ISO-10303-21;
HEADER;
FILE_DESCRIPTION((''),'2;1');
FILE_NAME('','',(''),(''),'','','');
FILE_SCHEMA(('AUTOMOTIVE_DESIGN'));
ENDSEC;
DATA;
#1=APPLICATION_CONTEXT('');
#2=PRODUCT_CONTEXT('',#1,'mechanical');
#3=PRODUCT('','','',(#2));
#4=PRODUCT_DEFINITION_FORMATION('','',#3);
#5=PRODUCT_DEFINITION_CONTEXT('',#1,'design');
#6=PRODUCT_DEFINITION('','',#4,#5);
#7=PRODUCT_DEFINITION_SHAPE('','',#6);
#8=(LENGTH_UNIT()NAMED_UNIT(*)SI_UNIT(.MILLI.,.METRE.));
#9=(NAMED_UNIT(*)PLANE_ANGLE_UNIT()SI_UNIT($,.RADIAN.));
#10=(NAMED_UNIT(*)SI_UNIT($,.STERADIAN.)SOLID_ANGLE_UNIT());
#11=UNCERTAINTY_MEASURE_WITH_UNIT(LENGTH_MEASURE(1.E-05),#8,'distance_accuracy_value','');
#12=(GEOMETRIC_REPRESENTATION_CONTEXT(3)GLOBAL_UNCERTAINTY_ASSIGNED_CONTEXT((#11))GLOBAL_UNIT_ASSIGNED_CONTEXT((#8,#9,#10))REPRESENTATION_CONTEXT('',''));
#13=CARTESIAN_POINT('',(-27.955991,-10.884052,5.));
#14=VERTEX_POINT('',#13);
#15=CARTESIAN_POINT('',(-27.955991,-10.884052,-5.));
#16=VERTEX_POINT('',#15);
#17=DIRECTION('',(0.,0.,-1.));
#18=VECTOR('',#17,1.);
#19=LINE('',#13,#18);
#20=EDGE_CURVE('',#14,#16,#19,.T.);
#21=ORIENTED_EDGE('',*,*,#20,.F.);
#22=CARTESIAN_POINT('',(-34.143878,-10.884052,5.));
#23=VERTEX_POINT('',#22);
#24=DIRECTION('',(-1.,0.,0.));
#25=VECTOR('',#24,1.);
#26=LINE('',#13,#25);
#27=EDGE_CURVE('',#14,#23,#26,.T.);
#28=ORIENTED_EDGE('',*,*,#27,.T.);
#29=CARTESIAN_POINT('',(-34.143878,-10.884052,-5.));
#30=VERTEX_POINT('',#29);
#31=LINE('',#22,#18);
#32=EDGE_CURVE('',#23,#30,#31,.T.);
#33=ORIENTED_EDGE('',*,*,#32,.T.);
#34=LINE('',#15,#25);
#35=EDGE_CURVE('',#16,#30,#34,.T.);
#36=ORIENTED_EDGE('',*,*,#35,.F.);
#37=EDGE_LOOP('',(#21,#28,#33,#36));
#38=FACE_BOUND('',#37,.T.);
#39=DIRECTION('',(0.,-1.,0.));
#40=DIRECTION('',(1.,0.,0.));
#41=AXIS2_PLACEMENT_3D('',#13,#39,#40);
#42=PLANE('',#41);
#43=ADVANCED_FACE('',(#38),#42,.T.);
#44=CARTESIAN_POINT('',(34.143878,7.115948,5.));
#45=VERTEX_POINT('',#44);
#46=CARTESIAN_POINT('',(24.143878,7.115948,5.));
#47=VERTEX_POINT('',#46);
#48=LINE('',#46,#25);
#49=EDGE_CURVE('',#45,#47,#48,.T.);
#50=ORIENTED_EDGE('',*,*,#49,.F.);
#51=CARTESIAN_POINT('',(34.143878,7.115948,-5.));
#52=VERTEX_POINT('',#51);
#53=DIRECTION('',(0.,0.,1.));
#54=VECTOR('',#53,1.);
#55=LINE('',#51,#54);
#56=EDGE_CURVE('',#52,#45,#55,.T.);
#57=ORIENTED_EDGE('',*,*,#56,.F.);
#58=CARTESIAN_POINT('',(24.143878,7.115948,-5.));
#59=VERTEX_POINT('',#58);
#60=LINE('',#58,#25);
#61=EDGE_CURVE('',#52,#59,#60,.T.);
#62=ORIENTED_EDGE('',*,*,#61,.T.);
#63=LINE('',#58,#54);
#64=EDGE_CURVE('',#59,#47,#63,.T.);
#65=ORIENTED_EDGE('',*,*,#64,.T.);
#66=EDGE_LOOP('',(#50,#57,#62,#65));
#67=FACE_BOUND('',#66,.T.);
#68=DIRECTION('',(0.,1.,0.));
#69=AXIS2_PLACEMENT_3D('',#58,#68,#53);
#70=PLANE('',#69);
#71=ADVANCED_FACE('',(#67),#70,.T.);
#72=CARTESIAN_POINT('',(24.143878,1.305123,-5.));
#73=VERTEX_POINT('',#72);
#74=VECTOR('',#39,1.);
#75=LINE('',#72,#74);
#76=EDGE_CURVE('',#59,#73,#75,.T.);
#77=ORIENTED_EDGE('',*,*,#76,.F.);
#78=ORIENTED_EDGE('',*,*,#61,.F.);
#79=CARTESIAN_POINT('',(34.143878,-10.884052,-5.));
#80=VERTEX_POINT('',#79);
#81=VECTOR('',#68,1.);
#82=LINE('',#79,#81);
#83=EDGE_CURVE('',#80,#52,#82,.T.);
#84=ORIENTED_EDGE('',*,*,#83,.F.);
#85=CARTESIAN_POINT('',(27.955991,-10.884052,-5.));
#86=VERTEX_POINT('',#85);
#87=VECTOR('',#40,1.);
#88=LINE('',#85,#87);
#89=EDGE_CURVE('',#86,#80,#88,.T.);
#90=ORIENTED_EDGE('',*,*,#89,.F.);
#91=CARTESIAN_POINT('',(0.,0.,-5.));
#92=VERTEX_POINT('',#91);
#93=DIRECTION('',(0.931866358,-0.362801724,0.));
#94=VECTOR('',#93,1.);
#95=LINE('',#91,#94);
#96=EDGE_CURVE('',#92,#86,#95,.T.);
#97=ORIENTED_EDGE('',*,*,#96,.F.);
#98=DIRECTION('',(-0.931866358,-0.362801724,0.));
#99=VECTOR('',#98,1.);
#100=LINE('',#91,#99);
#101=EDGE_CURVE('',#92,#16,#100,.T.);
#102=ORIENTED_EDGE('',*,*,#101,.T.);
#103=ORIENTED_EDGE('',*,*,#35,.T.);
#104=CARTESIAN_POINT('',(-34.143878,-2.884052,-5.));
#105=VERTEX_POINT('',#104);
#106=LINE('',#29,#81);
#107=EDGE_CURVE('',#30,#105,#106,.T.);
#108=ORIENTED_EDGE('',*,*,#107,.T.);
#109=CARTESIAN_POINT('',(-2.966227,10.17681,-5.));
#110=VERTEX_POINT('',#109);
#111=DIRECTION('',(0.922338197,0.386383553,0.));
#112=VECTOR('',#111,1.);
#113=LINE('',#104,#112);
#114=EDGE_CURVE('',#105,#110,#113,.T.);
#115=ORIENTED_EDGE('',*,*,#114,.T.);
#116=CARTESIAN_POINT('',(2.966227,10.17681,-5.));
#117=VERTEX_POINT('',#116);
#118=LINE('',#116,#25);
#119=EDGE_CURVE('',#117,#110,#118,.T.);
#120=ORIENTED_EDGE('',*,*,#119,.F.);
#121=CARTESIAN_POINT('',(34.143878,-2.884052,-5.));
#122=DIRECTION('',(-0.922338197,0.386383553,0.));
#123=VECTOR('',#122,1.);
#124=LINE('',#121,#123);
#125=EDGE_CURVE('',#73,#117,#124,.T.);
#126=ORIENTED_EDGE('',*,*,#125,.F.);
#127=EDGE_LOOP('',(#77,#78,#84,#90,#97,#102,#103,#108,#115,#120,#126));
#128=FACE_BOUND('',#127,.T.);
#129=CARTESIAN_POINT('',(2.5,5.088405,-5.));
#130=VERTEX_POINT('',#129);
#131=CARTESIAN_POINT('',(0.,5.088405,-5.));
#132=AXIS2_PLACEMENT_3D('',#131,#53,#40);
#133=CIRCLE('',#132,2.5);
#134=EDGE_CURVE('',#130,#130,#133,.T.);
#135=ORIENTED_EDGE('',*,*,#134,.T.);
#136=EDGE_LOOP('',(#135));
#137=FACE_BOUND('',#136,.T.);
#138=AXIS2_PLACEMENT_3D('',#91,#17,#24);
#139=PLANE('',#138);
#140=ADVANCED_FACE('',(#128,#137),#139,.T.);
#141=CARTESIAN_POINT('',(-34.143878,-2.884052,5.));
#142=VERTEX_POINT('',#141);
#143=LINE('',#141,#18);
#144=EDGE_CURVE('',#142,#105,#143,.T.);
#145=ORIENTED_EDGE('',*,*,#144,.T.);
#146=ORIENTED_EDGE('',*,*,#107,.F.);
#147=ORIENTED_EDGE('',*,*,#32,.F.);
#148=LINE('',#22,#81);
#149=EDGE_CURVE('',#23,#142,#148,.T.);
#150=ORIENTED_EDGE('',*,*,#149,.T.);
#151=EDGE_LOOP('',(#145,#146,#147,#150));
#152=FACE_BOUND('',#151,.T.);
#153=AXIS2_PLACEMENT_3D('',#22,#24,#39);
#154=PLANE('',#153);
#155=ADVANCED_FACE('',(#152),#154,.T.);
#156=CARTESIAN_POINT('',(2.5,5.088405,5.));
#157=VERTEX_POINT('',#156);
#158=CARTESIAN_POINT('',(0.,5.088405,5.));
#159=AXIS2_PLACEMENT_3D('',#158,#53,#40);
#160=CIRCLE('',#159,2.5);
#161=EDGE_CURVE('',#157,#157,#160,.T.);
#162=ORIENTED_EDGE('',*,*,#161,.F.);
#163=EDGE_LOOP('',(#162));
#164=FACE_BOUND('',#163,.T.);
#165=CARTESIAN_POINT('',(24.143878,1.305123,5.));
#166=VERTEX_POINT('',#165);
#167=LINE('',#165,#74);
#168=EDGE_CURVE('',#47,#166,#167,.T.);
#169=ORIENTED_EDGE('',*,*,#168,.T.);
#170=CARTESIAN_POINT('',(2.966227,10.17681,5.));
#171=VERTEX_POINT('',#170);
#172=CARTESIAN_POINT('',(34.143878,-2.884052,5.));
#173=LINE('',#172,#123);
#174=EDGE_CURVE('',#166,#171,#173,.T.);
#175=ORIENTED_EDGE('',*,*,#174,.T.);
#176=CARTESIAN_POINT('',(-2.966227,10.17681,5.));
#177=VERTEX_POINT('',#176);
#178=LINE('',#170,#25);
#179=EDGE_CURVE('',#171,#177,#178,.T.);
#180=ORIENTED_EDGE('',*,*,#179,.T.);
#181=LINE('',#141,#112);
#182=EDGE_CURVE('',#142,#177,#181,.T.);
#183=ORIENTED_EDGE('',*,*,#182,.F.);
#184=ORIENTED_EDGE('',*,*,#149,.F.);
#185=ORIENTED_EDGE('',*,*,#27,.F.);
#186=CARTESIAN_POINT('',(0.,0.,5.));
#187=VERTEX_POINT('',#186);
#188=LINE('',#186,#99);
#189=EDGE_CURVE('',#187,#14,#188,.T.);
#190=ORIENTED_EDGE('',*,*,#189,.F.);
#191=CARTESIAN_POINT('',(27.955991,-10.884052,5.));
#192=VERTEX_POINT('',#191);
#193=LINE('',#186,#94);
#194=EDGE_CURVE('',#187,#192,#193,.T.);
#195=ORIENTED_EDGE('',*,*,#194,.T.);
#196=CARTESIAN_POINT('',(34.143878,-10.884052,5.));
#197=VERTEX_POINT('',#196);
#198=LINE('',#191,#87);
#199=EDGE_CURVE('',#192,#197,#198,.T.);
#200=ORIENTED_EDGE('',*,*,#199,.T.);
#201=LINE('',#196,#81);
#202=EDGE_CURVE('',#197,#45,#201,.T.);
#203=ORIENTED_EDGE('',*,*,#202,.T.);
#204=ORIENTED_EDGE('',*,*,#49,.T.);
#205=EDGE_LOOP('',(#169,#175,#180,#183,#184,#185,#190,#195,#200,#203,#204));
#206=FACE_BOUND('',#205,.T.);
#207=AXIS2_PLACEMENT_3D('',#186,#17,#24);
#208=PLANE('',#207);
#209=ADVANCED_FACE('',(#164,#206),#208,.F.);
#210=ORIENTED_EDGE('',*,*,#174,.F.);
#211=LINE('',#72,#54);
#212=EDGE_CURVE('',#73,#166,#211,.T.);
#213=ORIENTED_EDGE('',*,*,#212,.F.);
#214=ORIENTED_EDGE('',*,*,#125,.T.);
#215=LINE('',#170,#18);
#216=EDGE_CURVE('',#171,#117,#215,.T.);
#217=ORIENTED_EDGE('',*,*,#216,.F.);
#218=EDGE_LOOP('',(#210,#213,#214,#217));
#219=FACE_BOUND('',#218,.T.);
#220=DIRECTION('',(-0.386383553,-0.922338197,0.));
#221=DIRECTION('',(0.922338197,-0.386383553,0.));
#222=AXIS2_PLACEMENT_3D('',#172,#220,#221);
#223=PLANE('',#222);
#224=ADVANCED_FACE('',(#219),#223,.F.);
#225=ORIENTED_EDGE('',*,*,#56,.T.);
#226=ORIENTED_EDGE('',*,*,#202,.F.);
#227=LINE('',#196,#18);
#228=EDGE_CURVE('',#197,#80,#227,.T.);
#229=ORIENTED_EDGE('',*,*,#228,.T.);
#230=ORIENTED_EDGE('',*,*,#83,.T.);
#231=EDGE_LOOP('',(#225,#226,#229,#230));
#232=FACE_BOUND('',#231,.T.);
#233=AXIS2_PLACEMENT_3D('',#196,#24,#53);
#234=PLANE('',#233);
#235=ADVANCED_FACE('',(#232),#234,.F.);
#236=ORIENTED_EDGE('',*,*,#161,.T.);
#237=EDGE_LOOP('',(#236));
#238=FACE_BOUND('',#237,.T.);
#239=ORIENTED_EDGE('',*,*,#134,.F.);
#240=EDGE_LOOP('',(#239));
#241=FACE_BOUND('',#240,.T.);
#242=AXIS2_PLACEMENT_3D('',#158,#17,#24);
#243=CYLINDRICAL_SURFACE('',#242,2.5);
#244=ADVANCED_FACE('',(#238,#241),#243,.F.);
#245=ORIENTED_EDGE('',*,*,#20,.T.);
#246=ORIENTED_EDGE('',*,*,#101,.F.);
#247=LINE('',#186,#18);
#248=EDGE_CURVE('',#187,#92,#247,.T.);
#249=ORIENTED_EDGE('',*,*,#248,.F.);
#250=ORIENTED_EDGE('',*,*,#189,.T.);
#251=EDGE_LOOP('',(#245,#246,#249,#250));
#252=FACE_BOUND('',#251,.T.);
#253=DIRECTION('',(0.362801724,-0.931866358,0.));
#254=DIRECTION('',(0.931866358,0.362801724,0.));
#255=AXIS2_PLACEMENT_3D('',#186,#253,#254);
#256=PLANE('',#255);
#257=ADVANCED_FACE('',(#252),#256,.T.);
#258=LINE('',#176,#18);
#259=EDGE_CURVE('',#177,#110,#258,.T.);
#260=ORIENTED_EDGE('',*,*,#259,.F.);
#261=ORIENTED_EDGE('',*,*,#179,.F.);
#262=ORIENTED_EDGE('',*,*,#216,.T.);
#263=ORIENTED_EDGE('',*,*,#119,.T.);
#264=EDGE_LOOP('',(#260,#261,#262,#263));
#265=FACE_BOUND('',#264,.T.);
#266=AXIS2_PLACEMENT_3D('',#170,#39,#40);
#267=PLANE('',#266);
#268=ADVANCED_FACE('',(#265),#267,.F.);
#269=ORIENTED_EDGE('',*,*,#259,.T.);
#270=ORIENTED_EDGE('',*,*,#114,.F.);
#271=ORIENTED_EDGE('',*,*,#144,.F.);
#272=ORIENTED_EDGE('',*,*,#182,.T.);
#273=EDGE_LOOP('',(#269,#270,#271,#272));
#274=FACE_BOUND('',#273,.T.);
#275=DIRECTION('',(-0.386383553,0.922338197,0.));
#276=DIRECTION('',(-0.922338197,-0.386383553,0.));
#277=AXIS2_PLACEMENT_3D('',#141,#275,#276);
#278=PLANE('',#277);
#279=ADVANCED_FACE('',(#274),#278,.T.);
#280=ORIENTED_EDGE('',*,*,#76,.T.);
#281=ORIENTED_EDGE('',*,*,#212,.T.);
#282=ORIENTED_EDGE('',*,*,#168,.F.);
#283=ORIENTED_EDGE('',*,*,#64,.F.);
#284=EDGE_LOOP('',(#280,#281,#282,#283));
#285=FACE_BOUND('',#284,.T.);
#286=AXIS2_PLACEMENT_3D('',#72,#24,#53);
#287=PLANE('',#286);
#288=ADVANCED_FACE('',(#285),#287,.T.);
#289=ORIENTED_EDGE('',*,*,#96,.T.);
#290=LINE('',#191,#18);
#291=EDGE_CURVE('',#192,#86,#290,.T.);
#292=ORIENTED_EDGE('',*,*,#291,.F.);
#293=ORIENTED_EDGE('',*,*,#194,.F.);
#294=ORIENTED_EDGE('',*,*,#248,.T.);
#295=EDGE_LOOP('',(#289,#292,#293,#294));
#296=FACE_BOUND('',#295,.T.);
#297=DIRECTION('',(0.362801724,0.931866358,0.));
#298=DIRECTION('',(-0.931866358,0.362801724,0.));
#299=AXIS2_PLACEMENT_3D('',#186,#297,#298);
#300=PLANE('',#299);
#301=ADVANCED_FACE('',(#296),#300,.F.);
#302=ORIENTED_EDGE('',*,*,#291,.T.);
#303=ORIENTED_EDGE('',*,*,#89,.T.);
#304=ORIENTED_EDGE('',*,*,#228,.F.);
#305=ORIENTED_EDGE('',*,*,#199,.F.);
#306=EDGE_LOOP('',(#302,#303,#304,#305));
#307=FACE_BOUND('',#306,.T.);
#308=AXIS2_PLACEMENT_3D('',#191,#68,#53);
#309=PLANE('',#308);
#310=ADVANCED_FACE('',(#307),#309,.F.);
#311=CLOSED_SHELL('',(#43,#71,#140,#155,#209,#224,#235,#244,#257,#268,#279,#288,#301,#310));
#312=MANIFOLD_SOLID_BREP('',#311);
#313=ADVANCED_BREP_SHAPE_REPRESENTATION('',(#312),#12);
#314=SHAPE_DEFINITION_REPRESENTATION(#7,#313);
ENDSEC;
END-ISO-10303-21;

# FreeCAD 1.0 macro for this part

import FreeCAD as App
import Part
import Sketcher
from FreeCAD import Vector

doc = App.newDocument("Part")
body = doc.addObject("PartDesign::Body", "Body")

# Sketch on XY plane
sketch1 = doc.addObject("Sketcher::SketchObject", "Sketch")
body.addObject(sketch1)
sketch1.AttachmentSupport = (doc.XY_Plane, [""])
sketch1.MapMode = "FlatFace"
sketch1.addGeometry(Part.LineSegment(Vector(0, 0, 0), Vector(28, -10.9, 0)), False)
sketch1.addGeometry(Part.LineSegment(Vector(28, -10.9, 0), Vector(34.1, -10.9, 0)), False)
sketch1.addGeometry(Part.LineSegment(Vector(34.1, -10.9, 0), Vector(34.1, -2.9, 0)), False)
sketch1.addGeometry(Part.LineSegment(Vector(34.1, -2.9, 0), Vector(3, 10.2, 0)), False)
sketch1.addGeometry(Part.LineSegment(Vector(3, 10.2, 0), Vector(-3, 10.2, 0)), False)
sketch1.addGeometry(Part.LineSegment(Vector(-3, 10.2, 0), Vector(-34.1, -2.9, 0)), False)
sketch1.addGeometry(Part.LineSegment(Vector(-34.1, -2.9, 0), Vector(-34.1, -10.9, 0)), False)
sketch1.addGeometry(Part.LineSegment(Vector(-34.1, -10.9, 0), Vector(-28, -10.9, 0)), False)
sketch1.addGeometry(Part.LineSegment(Vector(-28, -10.9, 0), Vector(0, 0, 0)), False)
sketch1.addGeometry(Part.Circle(Vector(0, 5.1, 0), Vector(0, 0, 1), 2.5), False)
sketch1.addConstraint(Sketcher.Constraint("Coincident", 0, 2, 1, 1))
sketch1.addConstraint(Sketcher.Constraint("Coincident", 1, 2, 2, 1))
sketch1.addConstraint(Sketcher.Constraint("Coincident", 2, 2, 3, 1))
sketch1.addConstraint(Sketcher.Constraint("Coincident", 3, 2, 4, 1))
sketch1.addConstraint(Sketcher.Constraint("Coincident", 4, 2, 5, 1))
sketch1.addConstraint(Sketcher.Constraint("Coincident", 5, 2, 6, 1))
sketch1.addConstraint(Sketcher.Constraint("Coincident", 6, 2, 7, 1))
sketch1.addConstraint(Sketcher.Constraint("Coincident", 7, 2, 8, 1))
sketch1.addConstraint(Sketcher.Constraint("Coincident", 8, 2, 0, 1))
sketch1.addConstraint(Sketcher.Constraint("Horizontal", 1))
sketch1.addConstraint(Sketcher.Constraint("Vertical", 2))
sketch1.addConstraint(Sketcher.Constraint("Horizontal", 4))
sketch1.addConstraint(Sketcher.Constraint("Vertical", 6))
sketch1.addConstraint(Sketcher.Constraint("Horizontal", 7))
sketch1.addConstraint(Sketcher.Constraint("Coincident", 8, 2, -1, 1))
sketch1.addConstraint(Sketcher.Constraint("Symmetric", 2, 2, 5, 2, -2))
sketch1.addConstraint(Sketcher.Constraint("Symmetric", 0, 2, 7, 2, -2))
sketch1.addConstraint(Sketcher.Constraint("PointOnObject", 9, 3, -2))
sketch1.addConstraint(Sketcher.Constraint("Equal", 3, 5))
sketch1.addConstraint(Sketcher.Constraint("Diameter", 9, 5.0))
sketch1.addConstraint(Sketcher.Constraint("DistanceY", 2, 1, 2, 2, 8.0))
sketch1.addConstraint(Sketcher.Constraint("Distance", 0, 30.0))
sketch1.addConstraint(Sketcher.Constraint("Distance", 3, 33.802841))
sketch1.addConstraint(Sketcher.Constraint("DistanceX", 1, 1, 1, 2, 6.187887))
sketch1.addConstraint(Sketcher.Constraint("DistanceX", 4, 2, 4, 1, 5.932453))
sketch1.addConstraint(Sketcher.Constraint("DistanceX", -1, 1, 0, 2, 27.955991))
sketch1.addConstraint(Sketcher.Constraint("DistanceY", -1, 1, 9, 3, 5.088405))
pad1 = doc.addObject("PartDesign::Pad", "Pad")
body.addObject(pad1)
pad1.Profile = sketch1
pad1.Length = 10
pad1.Midplane = True

# Sketch on XY plane
sketch2 = doc.addObject("Sketcher::SketchObject", "Sketch001")
body.addObject(sketch2)
sketch2.AttachmentSupport = (doc.XY_Plane, [""])
sketch2.MapMode = "FlatFace"
sketch2.AttachmentOffset = App.Placement(Vector(0, 0, 5), App.Rotation())
sketch2.addGeometry(Part.LineSegment(Vector(24, 1, 0), Vector(34, -3, 0)), False)
sketch2.addGeometry(Part.LineSegment(Vector(34, -3, 0), Vector(34, 7, 0)), False)
sketch2.addGeometry(Part.LineSegment(Vector(34, 7, 0), Vector(24, 7, 0)), False)
sketch2.addGeometry(Part.LineSegment(Vector(24, 7, 0), Vector(24, 1, 0)), False)
sketch2.addConstraint(Sketcher.Constraint("Coincident", 0, 2, 1, 1))
sketch2.addConstraint(Sketcher.Constraint("Coincident", 1, 2, 2, 1))
sketch2.addConstraint(Sketcher.Constraint("Coincident", 2, 2, 3, 1))
sketch2.addConstraint(Sketcher.Constraint("Coincident", 3, 2, 0, 1))
sketch2.addConstraint(Sketcher.Constraint("Vertical", 1))
sketch2.addConstraint(Sketcher.Constraint("Horizontal", 2))
sketch2.addConstraint(Sketcher.Constraint("Vertical", 3))
sketch2.addConstraint(Sketcher.Constraint("Equal", 2, 1))
sketch2.addConstraint(Sketcher.Constraint("DistanceX", 2, 2, 2, 1, 10.0))
sketch2.addConstraint(Sketcher.Constraint("Distance", 0, 10.84201))
sketch2.addConstraint(Sketcher.Constraint("DistanceX", -1, 1, 0, 2, 34.143878))
sketch2.addConstraint(Sketcher.Constraint("DistanceY", 0, 2, -1, 1, 2.884052))
pad2 = doc.addObject("PartDesign::Pad", "Pad001")
body.addObject(pad2)
pad2.Profile = sketch2
pad2.Length = 10
pad2.Reversed = True

doc.recompute()
